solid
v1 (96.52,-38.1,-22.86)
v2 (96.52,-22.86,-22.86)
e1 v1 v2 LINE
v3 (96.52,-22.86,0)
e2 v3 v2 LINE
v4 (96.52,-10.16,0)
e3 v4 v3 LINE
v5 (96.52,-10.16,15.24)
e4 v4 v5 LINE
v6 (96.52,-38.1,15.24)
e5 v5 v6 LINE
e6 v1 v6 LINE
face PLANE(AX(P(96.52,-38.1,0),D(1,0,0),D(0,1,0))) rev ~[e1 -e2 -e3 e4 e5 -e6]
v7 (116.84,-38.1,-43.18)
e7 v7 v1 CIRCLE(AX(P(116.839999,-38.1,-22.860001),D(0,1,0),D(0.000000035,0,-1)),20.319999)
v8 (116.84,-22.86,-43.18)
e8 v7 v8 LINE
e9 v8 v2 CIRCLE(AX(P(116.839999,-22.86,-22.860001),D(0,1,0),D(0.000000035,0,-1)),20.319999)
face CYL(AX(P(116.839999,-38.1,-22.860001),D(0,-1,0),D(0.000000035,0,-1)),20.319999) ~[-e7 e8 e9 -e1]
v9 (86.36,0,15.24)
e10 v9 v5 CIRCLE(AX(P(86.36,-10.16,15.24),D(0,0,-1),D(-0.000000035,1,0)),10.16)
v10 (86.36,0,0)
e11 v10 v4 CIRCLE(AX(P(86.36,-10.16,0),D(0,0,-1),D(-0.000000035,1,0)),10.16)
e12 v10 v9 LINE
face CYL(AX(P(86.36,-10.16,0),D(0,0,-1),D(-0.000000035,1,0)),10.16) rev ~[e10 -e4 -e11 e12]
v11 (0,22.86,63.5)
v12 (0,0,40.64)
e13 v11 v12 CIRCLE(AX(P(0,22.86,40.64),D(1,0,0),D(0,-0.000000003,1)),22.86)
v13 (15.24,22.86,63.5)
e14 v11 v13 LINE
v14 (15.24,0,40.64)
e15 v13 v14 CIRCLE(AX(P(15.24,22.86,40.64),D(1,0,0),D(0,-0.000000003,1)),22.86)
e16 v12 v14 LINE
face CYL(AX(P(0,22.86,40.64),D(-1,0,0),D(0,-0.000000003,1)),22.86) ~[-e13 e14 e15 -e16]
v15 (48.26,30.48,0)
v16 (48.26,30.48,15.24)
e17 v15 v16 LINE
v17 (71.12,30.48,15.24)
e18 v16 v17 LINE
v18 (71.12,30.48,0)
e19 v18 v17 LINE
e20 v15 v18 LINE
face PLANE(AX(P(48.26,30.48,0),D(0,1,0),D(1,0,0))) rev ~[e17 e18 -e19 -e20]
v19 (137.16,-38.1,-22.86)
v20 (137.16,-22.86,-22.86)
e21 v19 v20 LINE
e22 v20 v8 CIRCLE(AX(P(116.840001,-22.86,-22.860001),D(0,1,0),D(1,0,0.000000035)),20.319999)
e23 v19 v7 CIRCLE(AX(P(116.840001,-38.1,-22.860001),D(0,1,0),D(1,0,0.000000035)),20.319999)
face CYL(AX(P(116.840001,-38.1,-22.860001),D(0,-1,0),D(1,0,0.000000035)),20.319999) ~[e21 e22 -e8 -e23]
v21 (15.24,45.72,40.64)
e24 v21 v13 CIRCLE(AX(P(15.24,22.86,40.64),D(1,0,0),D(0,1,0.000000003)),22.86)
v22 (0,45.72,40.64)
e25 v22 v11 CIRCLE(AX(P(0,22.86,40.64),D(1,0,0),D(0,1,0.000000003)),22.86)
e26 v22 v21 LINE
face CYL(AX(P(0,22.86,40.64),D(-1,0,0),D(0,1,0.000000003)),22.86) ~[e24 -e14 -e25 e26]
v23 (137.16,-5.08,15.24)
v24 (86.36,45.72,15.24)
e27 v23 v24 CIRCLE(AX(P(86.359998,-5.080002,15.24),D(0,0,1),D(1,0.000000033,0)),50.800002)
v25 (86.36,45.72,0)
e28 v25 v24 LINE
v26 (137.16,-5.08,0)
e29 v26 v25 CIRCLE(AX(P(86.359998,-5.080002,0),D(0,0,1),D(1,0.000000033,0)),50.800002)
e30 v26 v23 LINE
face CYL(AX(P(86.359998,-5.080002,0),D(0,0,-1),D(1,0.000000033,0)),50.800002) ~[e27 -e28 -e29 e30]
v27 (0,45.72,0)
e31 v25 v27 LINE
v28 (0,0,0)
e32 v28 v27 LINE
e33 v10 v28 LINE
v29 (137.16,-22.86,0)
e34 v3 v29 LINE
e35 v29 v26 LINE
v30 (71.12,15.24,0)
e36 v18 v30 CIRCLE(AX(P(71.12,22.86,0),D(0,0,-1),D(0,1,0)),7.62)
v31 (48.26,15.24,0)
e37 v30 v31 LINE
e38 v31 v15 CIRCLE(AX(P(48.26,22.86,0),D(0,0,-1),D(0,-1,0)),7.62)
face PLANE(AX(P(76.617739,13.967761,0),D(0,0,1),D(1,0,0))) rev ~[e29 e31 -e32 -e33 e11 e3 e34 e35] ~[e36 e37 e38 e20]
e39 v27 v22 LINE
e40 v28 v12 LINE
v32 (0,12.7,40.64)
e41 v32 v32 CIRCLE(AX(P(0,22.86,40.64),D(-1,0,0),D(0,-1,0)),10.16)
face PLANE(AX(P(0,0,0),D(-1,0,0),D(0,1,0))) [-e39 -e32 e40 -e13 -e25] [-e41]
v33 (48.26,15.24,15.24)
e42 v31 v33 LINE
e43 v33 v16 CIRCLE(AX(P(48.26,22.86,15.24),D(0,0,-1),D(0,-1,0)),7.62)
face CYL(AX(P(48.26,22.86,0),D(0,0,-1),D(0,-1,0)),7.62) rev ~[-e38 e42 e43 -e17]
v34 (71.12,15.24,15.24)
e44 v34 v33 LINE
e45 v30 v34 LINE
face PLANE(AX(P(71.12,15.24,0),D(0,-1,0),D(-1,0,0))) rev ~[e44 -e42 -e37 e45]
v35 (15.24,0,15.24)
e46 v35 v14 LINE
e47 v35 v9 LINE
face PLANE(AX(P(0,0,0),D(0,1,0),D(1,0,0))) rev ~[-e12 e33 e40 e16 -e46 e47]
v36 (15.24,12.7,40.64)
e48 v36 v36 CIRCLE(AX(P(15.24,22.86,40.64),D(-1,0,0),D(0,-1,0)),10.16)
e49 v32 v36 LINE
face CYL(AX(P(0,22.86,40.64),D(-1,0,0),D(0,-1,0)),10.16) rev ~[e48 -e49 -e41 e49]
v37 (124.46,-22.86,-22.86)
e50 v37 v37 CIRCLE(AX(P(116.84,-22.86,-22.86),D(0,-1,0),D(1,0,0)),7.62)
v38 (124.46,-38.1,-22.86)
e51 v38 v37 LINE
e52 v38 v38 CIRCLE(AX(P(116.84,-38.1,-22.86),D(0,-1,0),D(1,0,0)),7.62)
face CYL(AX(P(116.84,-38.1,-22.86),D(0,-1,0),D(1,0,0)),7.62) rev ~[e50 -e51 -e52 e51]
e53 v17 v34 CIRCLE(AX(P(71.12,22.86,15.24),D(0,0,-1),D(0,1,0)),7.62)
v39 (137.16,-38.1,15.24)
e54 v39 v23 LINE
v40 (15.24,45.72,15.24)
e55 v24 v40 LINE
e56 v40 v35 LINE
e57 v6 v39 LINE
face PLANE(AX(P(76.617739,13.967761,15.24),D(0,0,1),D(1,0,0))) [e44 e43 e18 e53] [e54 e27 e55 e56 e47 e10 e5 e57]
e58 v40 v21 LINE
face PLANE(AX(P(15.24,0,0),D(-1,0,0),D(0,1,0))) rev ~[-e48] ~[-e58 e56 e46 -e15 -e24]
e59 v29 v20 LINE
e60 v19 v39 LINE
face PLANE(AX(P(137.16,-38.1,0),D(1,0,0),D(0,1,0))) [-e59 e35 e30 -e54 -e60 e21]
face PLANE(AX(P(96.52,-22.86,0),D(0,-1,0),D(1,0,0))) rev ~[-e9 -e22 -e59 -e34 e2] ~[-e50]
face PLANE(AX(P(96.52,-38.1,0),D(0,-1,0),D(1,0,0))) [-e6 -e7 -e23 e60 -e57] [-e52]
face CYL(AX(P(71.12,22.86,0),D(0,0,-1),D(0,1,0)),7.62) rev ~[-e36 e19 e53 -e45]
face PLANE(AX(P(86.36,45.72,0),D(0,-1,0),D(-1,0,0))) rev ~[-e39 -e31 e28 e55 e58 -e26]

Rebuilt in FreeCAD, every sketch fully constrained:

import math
import FreeCAD as App
import Part
import Sketcher

V = App.Vector
Q = App.Units.Quantity


def add_polygon(sketch, points):
    """Adds a closed chain of lines whose ends are joined by coincident constraints."""
    first, n = sketch.GeometryCount, len(points)
    for a, b in zip(points, points[1:] + points[:1]):
        sketch.addGeometry(Part.LineSegment(App.Vector(*a, 0), App.Vector(*b, 0)), False)
    for i in range(n):
        sketch.addConstraint(Sketcher.Constraint("Coincident", first + i, 2, first + (i + 1) % n, 1))

doc = App.newDocument("Part")
body = doc.addObject("PartDesign::Body", "Body")

# Sketch on XY plane
sketch1 = body.newObject("Sketcher::SketchObject", "Sketch")
sketch1.AttachmentSupport = (doc.getObject("XY_Plane"), [""])
sketch1.MapMode = "FlatFace"
sketch1.addGeometry(Part.LineSegment(V(86, 46, 0), V(0, 46, 0)), False)
sketch1.addGeometry(Part.LineSegment(V(0, 46, 0), V(0, 0, 0)), False)
sketch1.addGeometry(Part.LineSegment(V(0, 0, 0), V(86, 0, 0)), False)
sketch1.addGeometry(Part.ArcOfCircle(Part.Circle(V(86, -10, 0), V(0, 0, 1), 10), math.radians(0), math.radians(90)), False)
sketch1.addGeometry(Part.LineSegment(V(97, -10, 0), V(97, -38, 0)), False)
sketch1.addGeometry(Part.LineSegment(V(97, -38, 0), V(137, -38, 0)), False)
sketch1.addGeometry(Part.LineSegment(V(137, -38, 0), V(137, -5, 0)), False)
sketch1.addGeometry(Part.ArcOfCircle(Part.Circle(V(86, -5, 0), V(0, 0, 1), 51), math.radians(0), math.radians(90)), False)
sketch1.addGeometry(Part.LineSegment(V(71, 15, 0), V(48, 15, 0)), False)
sketch1.addGeometry(Part.ArcOfCircle(Part.Circle(V(48, 23, 0), V(0, 0, 1), 8), math.radians(90), math.radians(270)), False)
sketch1.addGeometry(Part.LineSegment(V(48, 30, 0), V(71, 30, 0)), False)
sketch1.addGeometry(Part.ArcOfCircle(Part.Circle(V(71, 23, 0), V(0, 0, 1), 8), math.radians(-90), math.radians(90)), False)
sketch1.addConstraint(Sketcher.Constraint("Coincident", 0, 2, 1, 1))
sketch1.addConstraint(Sketcher.Constraint("Coincident", 1, 2, 2, 1))
sketch1.addConstraint(Sketcher.Constraint("Tangent", 2, 2, 3, 2))
sketch1.addConstraint(Sketcher.Constraint("Tangent", 3, 1, 4, 1))
sketch1.addConstraint(Sketcher.Constraint("Coincident", 4, 2, 5, 1))
sketch1.addConstraint(Sketcher.Constraint("Coincident", 5, 2, 6, 1))
sketch1.addConstraint(Sketcher.Constraint("Tangent", 6, 2, 7, 1))
sketch1.addConstraint(Sketcher.Constraint("Tangent", 7, 2, 0, 1))
sketch1.addConstraint(Sketcher.Constraint("Tangent", 8, 2, 9, 2))
sketch1.addConstraint(Sketcher.Constraint("Tangent", 9, 1, 10, 1))
sketch1.addConstraint(Sketcher.Constraint("Tangent", 10, 2, 11, 2))
sketch1.addConstraint(Sketcher.Constraint("Tangent", 11, 1, 8, 1))
sketch1.addConstraint(Sketcher.Constraint("Horizontal", 0))
sketch1.addConstraint(Sketcher.Constraint("Vertical", 1))
sketch1.addConstraint(Sketcher.Constraint("Horizontal", 2))
sketch1.addConstraint(Sketcher.Constraint("Vertical", 4))
sketch1.addConstraint(Sketcher.Constraint("Horizontal", 5))
sketch1.addConstraint(Sketcher.Constraint("Vertical", 6))
sketch1.addConstraint(Sketcher.Constraint("Horizontal", 8))
sketch1.addConstraint(Sketcher.Constraint("Horizontal", 10))
sketch1.addConstraint(Sketcher.Constraint("Coincident", 1, 2, -1, 1))
sketch1.addConstraint(Sketcher.Constraint("Vertical", 7, 3, 2, 2))
sketch1.addConstraint(Sketcher.Constraint("Radius", 7, Q("2.0000001 in")))
sketch1.addConstraint(Sketcher.Constraint("Radius", 3, Q("0.4 in")))
sketch1.addConstraint(Sketcher.Constraint("Radius", 9, Q("0.3 in")))
sketch1.addConstraint(Sketcher.Constraint("DistanceX", 0, 2, 0, 1, Q("3.4 in")))
sketch1.addConstraint(Sketcher.Constraint("DistanceX", 8, 2, 8, 1, Q("0.9 in")))
sketch1.addConstraint(Sketcher.Constraint("DistanceY", 1, 2, 1, 1, Q("1.8 in")))
sketch1.addConstraint(Sketcher.Constraint("DistanceY", 4, 2, 4, 1, Q("1.1 in")))
sketch1.addConstraint(Sketcher.Constraint("DistanceX", 11, 3, 3, 1, Q("1 in")))
sketch1.addConstraint(Sketcher.Constraint("DistanceY", 3, 3, 8, 2, Q("1 in")))
pad1 = body.newObject("PartDesign::Pad", "Pad")
pad1.Profile = sketch1
pad1.Length = Q("0.6 in")

# Sketch on XY plane
sketch2 = body.newObject("Sketcher::SketchObject", "Sketch001")
sketch2.AttachmentSupport = (doc.getObject("XY_Plane"), [""])
sketch2.MapMode = "FlatFace"
add_polygon(sketch2, [(0, 46), (0, 0), (15, 0), (15, 46)])  # lines 0-3
sketch2.addConstraint(Sketcher.Constraint("Vertical", 0))
sketch2.addConstraint(Sketcher.Constraint("Horizontal", 1))
sketch2.addConstraint(Sketcher.Constraint("Vertical", 2))
sketch2.addConstraint(Sketcher.Constraint("Horizontal", 3))
sketch2.addConstraint(Sketcher.Constraint("Coincident", 0, 2, -1, 1))
sketch2.addConstraint(Sketcher.Constraint("DistanceX", 1, 1, 1, 2, Q("0.6 in")))
sketch2.addConstraint(Sketcher.Constraint("DistanceY", 0, 2, 0, 1, Q("1.8 in")))
pad2 = body.newObject("PartDesign::Pad", "Pad001")
pad2.Profile = sketch2
pad2.Length = Q("2.5 in")

# Sketch on XY plane
sketch3 = body.newObject("Sketcher::SketchObject", "Sketch002")
sketch3.AttachmentSupport = (doc.getObject("XY_Plane"), [""])
sketch3.MapMode = "FlatFace"
add_polygon(sketch3, [(97, -23), (97, -38), (137, -38), (137, -23)])  # lines 0-3
sketch3.addConstraint(Sketcher.Constraint("Vertical", 0))
sketch3.addConstraint(Sketcher.Constraint("Horizontal", 1))
sketch3.addConstraint(Sketcher.Constraint("Vertical", 2))
sketch3.addConstraint(Sketcher.Constraint("Horizontal", 3))
sketch3.addConstraint(Sketcher.Constraint("DistanceX", 1, 1, 1, 2, Q("1.6 in")))
sketch3.addConstraint(Sketcher.Constraint("DistanceY", 0, 2, 0, 1, Q("0.6 in")))
sketch3.addConstraint(Sketcher.Constraint("DistanceX", -1, 1, 0, 2, Q("3.8 in")))
sketch3.addConstraint(Sketcher.Constraint("DistanceY", 0, 2, -1, 1, Q("1.5 in")))
pad3 = body.newObject("PartDesign::Pad", "Pad002")
pad3.Profile = sketch3
pad3.Length = Q("1.7 in")
pad3.Reversed = True

# Sketch on YZ plane
sketch4 = body.newObject("Sketcher::SketchObject", "Sketch003")
sketch4.AttachmentSupport = (doc.getObject("YZ_Plane"), [""])
sketch4.MapMode = "FlatFace"
sketch4.addGeometry(Part.ArcOfCircle(Part.Circle(V(23, 41, 0), V(0, 0, 1), 23), math.radians(90), math.radians(180)), False)
sketch4.addGeometry(Part.LineSegment(V(0, 41, 0), V(0, 64, 0)), False)
sketch4.addGeometry(Part.LineSegment(V(0, 64, 0), V(23, 64, 0)), False)
sketch4.addGeometry(Part.LineSegment(V(46, 64, 0), V(46, 41, 0)), False)
sketch4.addGeometry(Part.ArcOfCircle(Part.Circle(V(23, 41, 0), V(0, 0, 1), 23), math.radians(0), math.radians(90)), False)
sketch4.addGeometry(Part.LineSegment(V(23, 64, 0), V(46, 64, 0)), False)
sketch4.addGeometry(Part.Circle(V(23, 41, 0), V(0, 0, 1), 10), False)
sketch4.addConstraint(Sketcher.Constraint("Tangent", 0, 2, 1, 1))
sketch4.addConstraint(Sketcher.Constraint("Coincident", 1, 2, 2, 1))
sketch4.addConstraint(Sketcher.Constraint("Tangent", 2, 2, 0, 1))
sketch4.addConstraint(Sketcher.Constraint("Tangent", 3, 2, 4, 1))
sketch4.addConstraint(Sketcher.Constraint("Tangent", 4, 2, 5, 1))
sketch4.addConstraint(Sketcher.Constraint("Coincident", 5, 2, 3, 1))
sketch4.addConstraint(Sketcher.Constraint("Vertical", 1))
sketch4.addConstraint(Sketcher.Constraint("Horizontal", 2))
sketch4.addConstraint(Sketcher.Constraint("Vertical", 3))
sketch4.addConstraint(Sketcher.Constraint("Horizontal", 5))
sketch4.addConstraint(Sketcher.Constraint("Coincident", 4, 3, 0, 3))
sketch4.addConstraint(Sketcher.Constraint("Coincident", 6, 3, 0, 3))
sketch4.addConstraint(Sketcher.Constraint("Equal", 0, 4))
sketch4.addConstraint(Sketcher.Constraint("PointOnObject", 0, 2, -2))
sketch4.addConstraint(Sketcher.Constraint("Diameter", 6, Q("0.8 in")))
sketch4.addConstraint(Sketcher.Constraint("Radius", 0, Q("0.9 in")))
sketch4.addConstraint(Sketcher.Constraint("DistanceY", -1, 1, 0, 3, Q("1.6 in")))
pocket1 = body.newObject("PartDesign::Pocket", "Pocket")
pocket1.Profile = sketch4
pocket1.Type = "ThroughAll"
pocket1.Reversed = True

# Sketch on XZ plane
sketch5 = body.newObject("Sketcher::SketchObject", "Sketch004")
sketch5.AttachmentSupport = (doc.getObject("XZ_Plane"), [""])
sketch5.MapMode = "FlatFace"
sketch5.AttachmentOffset = App.Placement(V(0, 0, 1.5 * 25.4), App.Rotation())
sketch5.addGeometry(Part.ArcOfCircle(Part.Circle(V(117, -23, 0), V(0, 0, 1), 20), math.radians(-90), math.radians(0)), False)
sketch5.addGeometry(Part.LineSegment(V(117, -43, 0), V(137, -43, 0)), False)
sketch5.addGeometry(Part.LineSegment(V(137, -43, 0), V(137, -23, 0)), False)
sketch5.addGeometry(Part.ArcOfCircle(Part.Circle(V(117, -23, 0), V(0, 0, 1), 20), math.radians(180), math.radians(270)), False)
sketch5.addGeometry(Part.LineSegment(V(97, -23, 0), V(97, -43, 0)), False)
sketch5.addGeometry(Part.LineSegment(V(97, -43, 0), V(117, -43, 0)), False)
sketch5.addGeometry(Part.Circle(V(117, -23, 0), V(0, 0, 1), 8), False)
sketch5.addConstraint(Sketcher.Constraint("Tangent", 0, 1, 1, 1))
sketch5.addConstraint(Sketcher.Constraint("Coincident", 1, 2, 2, 1))
sketch5.addConstraint(Sketcher.Constraint("Tangent", 2, 2, 0, 2))
sketch5.addConstraint(Sketcher.Constraint("Tangent", 3, 1, 4, 1))
sketch5.addConstraint(Sketcher.Constraint("Coincident", 4, 2, 5, 1))
sketch5.addConstraint(Sketcher.Constraint("Tangent", 5, 2, 3, 2))
sketch5.addConstraint(Sketcher.Constraint("Horizontal", 1))
sketch5.addConstraint(Sketcher.Constraint("Vertical", 2))
sketch5.addConstraint(Sketcher.Constraint("Vertical", 4))
sketch5.addConstraint(Sketcher.Constraint("Horizontal", 5))
sketch5.addConstraint(Sketcher.Constraint("Coincident", 3, 3, 0, 3))
sketch5.addConstraint(Sketcher.Constraint("Coincident", 6, 3, 0, 3))
sketch5.addConstraint(Sketcher.Constraint("Equal", 0, 3))
sketch5.addConstraint(Sketcher.Constraint("Diameter", 6, Q("0.6 in")))
sketch5.addConstraint(Sketcher.Constraint("Radius", 0, Q("0.8 in")))
sketch5.addConstraint(Sketcher.Constraint("DistanceX", -1, 1, 0, 3, Q("4.6 in")))
sketch5.addConstraint(Sketcher.Constraint("DistanceY", 0, 3, -1, 1, Q("0.9 in")))
pocket2 = body.newObject("PartDesign::Pocket", "Pocket001")
pocket2.Profile = sketch5
pocket2.Type = "ThroughAll"

doc.recompute()
